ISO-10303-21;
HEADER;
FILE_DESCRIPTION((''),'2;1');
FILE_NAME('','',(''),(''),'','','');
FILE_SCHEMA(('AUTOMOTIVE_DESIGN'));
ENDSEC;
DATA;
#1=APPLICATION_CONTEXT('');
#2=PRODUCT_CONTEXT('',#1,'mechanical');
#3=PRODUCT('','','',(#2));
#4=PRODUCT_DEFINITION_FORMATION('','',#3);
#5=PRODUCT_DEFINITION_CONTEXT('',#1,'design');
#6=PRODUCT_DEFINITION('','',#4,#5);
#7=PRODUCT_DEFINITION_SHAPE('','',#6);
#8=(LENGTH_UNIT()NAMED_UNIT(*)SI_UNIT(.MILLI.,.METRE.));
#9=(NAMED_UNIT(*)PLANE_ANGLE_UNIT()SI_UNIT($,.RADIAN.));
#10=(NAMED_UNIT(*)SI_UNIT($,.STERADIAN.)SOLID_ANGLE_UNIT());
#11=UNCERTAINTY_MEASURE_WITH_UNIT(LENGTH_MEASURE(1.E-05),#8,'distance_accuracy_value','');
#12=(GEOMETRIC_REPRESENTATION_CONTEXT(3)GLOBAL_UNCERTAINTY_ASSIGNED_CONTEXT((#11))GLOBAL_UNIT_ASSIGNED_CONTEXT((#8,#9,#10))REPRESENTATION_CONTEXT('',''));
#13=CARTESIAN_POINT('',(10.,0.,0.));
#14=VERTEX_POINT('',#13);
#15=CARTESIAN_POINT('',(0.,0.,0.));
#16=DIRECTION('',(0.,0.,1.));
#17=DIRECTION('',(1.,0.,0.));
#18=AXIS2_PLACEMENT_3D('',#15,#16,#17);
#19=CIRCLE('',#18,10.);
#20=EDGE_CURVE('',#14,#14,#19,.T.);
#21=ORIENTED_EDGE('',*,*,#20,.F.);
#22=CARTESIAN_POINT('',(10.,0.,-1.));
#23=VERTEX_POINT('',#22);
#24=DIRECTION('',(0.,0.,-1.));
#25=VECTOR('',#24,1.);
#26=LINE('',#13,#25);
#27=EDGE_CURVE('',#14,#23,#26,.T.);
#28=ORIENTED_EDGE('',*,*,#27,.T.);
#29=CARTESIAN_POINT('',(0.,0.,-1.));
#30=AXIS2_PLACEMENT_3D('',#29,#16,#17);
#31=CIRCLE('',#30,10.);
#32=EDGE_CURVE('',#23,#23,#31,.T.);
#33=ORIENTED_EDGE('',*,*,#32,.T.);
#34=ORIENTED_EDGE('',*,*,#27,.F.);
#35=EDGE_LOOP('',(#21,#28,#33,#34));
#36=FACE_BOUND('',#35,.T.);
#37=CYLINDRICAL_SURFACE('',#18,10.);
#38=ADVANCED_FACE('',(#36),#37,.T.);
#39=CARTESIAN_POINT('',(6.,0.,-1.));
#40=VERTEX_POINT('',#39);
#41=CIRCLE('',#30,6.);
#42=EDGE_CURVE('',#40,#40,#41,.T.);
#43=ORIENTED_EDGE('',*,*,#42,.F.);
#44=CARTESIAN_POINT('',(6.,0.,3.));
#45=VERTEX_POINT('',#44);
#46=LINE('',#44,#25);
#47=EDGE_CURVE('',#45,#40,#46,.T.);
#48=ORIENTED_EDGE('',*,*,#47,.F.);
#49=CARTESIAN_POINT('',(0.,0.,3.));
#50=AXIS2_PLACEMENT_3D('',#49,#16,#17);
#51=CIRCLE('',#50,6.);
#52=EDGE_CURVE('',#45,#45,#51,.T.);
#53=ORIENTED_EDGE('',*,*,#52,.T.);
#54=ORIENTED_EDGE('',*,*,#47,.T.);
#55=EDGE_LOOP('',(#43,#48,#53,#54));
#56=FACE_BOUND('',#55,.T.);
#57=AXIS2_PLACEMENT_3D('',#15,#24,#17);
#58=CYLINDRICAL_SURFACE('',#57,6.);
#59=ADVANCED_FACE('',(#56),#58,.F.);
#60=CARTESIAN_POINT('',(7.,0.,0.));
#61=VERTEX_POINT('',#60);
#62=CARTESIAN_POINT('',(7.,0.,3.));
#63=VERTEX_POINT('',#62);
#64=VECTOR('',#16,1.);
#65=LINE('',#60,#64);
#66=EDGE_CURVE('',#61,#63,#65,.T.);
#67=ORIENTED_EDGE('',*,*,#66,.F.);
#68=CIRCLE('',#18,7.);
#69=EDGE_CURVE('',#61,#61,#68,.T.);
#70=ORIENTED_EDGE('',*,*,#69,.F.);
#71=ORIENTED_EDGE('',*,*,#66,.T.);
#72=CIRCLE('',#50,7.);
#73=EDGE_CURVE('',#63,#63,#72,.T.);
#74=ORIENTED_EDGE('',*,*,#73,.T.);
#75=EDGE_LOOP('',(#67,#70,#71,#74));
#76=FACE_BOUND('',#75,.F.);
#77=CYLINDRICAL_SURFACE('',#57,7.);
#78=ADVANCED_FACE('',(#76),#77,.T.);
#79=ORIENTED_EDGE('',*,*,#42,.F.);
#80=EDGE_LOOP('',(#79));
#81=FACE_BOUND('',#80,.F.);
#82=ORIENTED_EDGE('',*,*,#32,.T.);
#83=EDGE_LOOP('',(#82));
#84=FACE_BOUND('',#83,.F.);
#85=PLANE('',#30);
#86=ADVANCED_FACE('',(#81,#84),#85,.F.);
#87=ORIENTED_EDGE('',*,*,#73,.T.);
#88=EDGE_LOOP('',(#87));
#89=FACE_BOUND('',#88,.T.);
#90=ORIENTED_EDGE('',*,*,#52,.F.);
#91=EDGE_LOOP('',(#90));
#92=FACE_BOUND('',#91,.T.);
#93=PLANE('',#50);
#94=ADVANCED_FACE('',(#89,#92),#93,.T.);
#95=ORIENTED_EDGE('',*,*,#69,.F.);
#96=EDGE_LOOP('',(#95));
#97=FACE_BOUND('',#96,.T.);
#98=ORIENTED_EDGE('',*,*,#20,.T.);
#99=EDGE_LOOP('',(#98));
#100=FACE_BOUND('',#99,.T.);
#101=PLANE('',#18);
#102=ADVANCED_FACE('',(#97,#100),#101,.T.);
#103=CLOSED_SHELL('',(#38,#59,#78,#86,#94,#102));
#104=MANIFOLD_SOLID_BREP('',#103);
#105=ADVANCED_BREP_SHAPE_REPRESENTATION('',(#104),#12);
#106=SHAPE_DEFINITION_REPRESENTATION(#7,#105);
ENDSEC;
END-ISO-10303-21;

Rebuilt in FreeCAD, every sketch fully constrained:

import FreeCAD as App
import Part
import Sketcher
from FreeCAD import Vector
Q = App.Units.Quantity

doc = App.newDocument("Part")
body = doc.addObject("PartDesign::Body", "Body")

# Sketch on XY plane
sketch1 = body.newObject("Sketcher::SketchObject", "Sketch")
sketch1.AttachmentSupport = (doc.getObject("XY_Plane"), [""])
sketch1.MapMode = "FlatFace"
sketch1.addGeometry([
    Part.Circle(Vector(0, 0, 0), Vector(0, 0, 1), 7),
    Part.Circle(Vector(0, 0, 0), Vector(0, 0, 1), 6),
], False)
sketch1.addConstraint([
    Sketcher.Constraint("Coincident", 0, 3, -1, 1),
    Sketcher.Constraint("Coincident", 1, 3, -1, 1),
    Sketcher.Constraint("Diameter", 0, Q("14 mm")),
    Sketcher.Constraint("Diameter", 1, Q("12 mm")),
])
pad1 = body.newObject("PartDesign::Pad", "Pad")
pad1.Profile = sketch1
pad1.Length = 3

# Sketch on XY plane
sketch2 = body.newObject("Sketcher::SketchObject", "Sketch001")
sketch2.AttachmentSupport = (doc.getObject("XY_Plane"), [""])
sketch2.MapMode = "FlatFace"
sketch2.addGeometry([
    Part.Circle(Vector(0, 0, 0), Vector(0, 0, 1), 10),
    Part.Circle(Vector(0, 0, 0), Vector(0, 0, 1), 6),
], False)
sketch2.addConstraint([
    Sketcher.Constraint("Coincident", 0, 3, -1, 1),
    Sketcher.Constraint("Coincident", 1, 3, -1, 1),
    Sketcher.Constraint("Diameter", 0, Q("20 mm")),
    Sketcher.Constraint("Diameter", 1, Q("12 mm")),
])
pad2 = body.newObject("PartDesign::Pad", "Pad001")
pad2.Profile = sketch2
pad2.Length = 1
pad2.Reversed = True

doc.recompute()
